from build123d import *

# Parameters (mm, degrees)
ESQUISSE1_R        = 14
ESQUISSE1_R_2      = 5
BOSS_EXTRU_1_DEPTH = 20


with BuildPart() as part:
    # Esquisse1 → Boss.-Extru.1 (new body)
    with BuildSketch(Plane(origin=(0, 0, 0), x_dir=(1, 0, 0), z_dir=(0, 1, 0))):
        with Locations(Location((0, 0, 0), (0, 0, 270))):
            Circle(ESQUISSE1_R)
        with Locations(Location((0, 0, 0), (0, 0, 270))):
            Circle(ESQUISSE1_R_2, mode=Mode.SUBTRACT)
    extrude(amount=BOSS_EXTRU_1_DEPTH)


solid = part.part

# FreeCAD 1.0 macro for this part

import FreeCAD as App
import Part
import Sketcher
Q = App.Units.Quantity

doc = App.newDocument("Part")
body = doc.addObject("PartDesign::Body", "Body")

# Sketch on XZ plane
sketch1 = body.newObject("Sketcher::SketchObject", "Sketch")
sketch1.AttachmentSupport = (doc.getObject("XZ_Plane"), [""])
sketch1.MapMode = "FlatFace"
sketch1.addGeometry([
    Part.Circle(App.Vector(0, 0, 0), App.Vector(0, 0, 1), 14),
    Part.Circle(App.Vector(0, 0, 0), App.Vector(0, 0, 1), 5),
], False)
sketch1.addConstraint([
    Sketcher.Constraint("Coincident", 0, 3, -1, 1),
    Sketcher.Constraint("Coincident", 1, 3, -1, 1),
    Sketcher.Constraint("Diameter", 0, Q("28 mm")),
    Sketcher.Constraint("Diameter", 1, Q("10 mm")),
])
pad1 = body.newObject("PartDesign::Pad", "Pad")
pad1.Profile = sketch1
pad1.Length = 20
pad1.Reversed = True

doc.recompute()
